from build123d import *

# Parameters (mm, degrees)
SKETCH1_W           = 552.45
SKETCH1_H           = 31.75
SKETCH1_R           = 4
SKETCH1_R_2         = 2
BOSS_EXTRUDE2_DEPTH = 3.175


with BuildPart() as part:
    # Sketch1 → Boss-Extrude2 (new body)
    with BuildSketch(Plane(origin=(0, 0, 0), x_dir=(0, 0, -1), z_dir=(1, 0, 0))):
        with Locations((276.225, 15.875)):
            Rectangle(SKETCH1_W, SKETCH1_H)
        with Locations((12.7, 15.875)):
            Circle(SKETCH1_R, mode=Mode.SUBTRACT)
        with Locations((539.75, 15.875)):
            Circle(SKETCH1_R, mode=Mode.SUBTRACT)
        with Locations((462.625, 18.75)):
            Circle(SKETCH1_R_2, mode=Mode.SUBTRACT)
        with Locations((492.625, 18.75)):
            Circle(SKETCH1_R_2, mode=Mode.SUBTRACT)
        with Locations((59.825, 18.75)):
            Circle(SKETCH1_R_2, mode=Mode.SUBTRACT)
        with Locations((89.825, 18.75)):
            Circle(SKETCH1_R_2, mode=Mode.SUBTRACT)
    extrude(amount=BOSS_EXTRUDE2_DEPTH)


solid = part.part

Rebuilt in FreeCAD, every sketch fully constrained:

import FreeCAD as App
import Part
import Sketcher
from FreeCAD import Vector
Q = App.Units.Quantity


def add_polygon(sketch, points):
    """Adds a closed chain of lines whose ends are joined by coincident constraints."""
    first, n = sketch.GeometryCount, len(points)
    for a, b in zip(points, points[1:] + points[:1]):
        sketch.addGeometry(Part.LineSegment(App.Vector(*a, 0), App.Vector(*b, 0)), False)
    for i in range(n):
        sketch.addConstraint(Sketcher.Constraint("Coincident", first + i, 2, first + (i + 1) % n, 1))

doc = App.newDocument("Part")
body = doc.addObject("PartDesign::Body", "Body")

# Sketch on YZ plane
sketch1 = doc.addObject("Sketcher::SketchObject", "Sketch")
body.addObject(sketch1)
sketch1.AttachmentSupport = (doc.YZ_Plane, [""])
sketch1.MapMode = "FlatFace"
add_polygon(sketch1, [(31.75, 0), (0, 0), (0, -552.45), (31.75, -552.45)])  # lines 0-3
sketch1.addGeometry(Part.Circle(Vector(15.875, -12.7, 0), Vector(0, 0, 1), 4), False)  # 4
sketch1.addGeometry(Part.Circle(Vector(15.875, -539.75, 0), Vector(0, 0, 1), 4), False)  # 5
sketch1.addGeometry(Part.Circle(Vector(18.75, -59.825, 0), Vector(0, 0, 1), 2), False)  # 6
sketch1.addGeometry(Part.Circle(Vector(18.75, -89.825, 0), Vector(0, 0, 1), 2), False)  # 7
sketch1.addGeometry(Part.Circle(Vector(18.75, -462.625, 0), Vector(0, 0, 1), 2), False)  # 8
sketch1.addGeometry(Part.Circle(Vector(18.75, -492.625, 0), Vector(0, 0, 1), 2), False)  # 9
sketch1.addConstraint([
    Sketcher.Constraint("Horizontal", 0),
    Sketcher.Constraint("Vertical", 1),
    Sketcher.Constraint("Horizontal", 2),
    Sketcher.Constraint("Vertical", 3),
    Sketcher.Constraint("Coincident", 0, 2, -1, 1),
    Sketcher.Constraint("Equal", 4, 5),
    Sketcher.Constraint("Equal", 6, 7),
    Sketcher.Constraint("Equal", 7, 8),
    Sketcher.Constraint("Equal", 8, 9),
    Sketcher.Constraint("Vertical", 4, 3, 5, 3),
    Sketcher.Constraint("Vertical", 6, 3, 7, 3),
    Sketcher.Constraint("Vertical", 7, 3, 8, 3),
    Sketcher.Constraint("Vertical", 8, 3, 9, 3),
    Sketcher.Constraint("DistanceX", 0, 2, 0, 1, Q("1.25 in")),
    Sketcher.Constraint("DistanceY", 1, 2, 1, 1, Q("21.75 in")),
    Sketcher.Constraint("DistanceY", 4, 3, -1, 1, Q("0.5 in")),
    Sketcher.Constraint("DistanceY", 1, 2, 5, 3, Q("0.5 in")),
    Sketcher.Constraint("Diameter", 4, Q("8 mm")),
    Sketcher.Constraint("Diameter", 6, Q("4 mm")),
    Sketcher.Constraint("DistanceX", -1, 1, 4, 3, Q("0.625 in")),
    Sketcher.Constraint("DistanceX", -1, 1, 6, 3, Q("18.75 mm")),
    Sketcher.Constraint("DistanceY", 6, 3, -1, 1, Q("59.825 mm")),
    Sketcher.Constraint("DistanceY", 7, 3, -1, 1, Q("89.825 mm")),
    Sketcher.Constraint("DistanceY", 8, 3, -1, 1, Q("462.625 mm")),
    Sketcher.Constraint("DistanceY", 9, 3, -1, 1, Q("492.625 mm")),
])
pad1 = doc.addObject("PartDesign::Pad", "Pad")
body.addObject(pad1)
pad1.Profile = sketch1
pad1.Length = Q("0.125 in")

doc.recompute()
